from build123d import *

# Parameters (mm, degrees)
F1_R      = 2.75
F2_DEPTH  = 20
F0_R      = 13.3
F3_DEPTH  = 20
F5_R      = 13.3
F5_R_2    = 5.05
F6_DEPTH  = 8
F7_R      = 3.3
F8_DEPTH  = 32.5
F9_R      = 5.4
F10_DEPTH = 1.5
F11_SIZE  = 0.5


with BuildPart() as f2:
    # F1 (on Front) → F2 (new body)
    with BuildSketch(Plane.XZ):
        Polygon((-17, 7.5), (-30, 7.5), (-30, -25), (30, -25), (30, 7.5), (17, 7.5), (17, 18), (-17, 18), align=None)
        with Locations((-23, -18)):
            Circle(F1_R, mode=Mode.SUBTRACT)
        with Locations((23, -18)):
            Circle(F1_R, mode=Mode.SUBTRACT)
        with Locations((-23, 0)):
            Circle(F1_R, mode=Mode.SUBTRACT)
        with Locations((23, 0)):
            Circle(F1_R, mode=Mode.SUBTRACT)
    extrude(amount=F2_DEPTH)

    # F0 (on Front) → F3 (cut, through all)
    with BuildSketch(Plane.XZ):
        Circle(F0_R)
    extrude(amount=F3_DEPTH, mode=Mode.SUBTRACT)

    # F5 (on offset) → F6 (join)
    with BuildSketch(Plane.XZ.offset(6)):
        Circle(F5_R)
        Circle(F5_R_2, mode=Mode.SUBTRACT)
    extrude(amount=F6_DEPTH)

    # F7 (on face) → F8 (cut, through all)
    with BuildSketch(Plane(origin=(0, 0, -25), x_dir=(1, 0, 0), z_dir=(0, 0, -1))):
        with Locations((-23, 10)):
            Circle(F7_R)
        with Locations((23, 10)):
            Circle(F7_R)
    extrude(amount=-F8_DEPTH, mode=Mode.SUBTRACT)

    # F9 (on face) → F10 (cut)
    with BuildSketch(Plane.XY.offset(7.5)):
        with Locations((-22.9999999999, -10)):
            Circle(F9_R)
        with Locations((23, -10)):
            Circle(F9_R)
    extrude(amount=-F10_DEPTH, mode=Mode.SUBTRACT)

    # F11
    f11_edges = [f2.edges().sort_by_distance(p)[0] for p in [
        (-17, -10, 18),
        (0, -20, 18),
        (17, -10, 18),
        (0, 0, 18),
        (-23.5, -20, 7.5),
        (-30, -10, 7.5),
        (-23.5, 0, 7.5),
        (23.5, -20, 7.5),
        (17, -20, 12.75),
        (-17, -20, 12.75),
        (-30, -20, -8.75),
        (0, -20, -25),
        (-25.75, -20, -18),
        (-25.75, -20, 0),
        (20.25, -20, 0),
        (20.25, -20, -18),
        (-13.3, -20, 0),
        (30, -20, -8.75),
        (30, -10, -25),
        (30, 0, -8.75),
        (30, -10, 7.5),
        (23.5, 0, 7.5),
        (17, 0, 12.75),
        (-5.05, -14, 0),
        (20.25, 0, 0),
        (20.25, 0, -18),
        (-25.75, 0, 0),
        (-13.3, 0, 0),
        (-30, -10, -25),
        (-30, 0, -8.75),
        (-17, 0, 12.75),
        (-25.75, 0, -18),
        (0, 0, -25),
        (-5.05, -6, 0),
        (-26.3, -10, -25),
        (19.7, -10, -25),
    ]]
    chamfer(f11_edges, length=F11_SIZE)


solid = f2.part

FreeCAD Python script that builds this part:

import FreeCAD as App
import Part
import Sketcher
Q = App.Units.Quantity


def edges_at(feature, points):
    """Names of the edges that pass closest to the given points."""
    edges = feature.Shape.Edges
    near = lambda p: min(range(len(edges)), key=lambda i: edges[i].distToShape(Part.Vertex(*p))[0])
    return sorted({f"Edge{near(p) + 1}" for p in points})

doc = App.newDocument("Part")
params = doc.addObject("Spreadsheet::Sheet", "Params")
for row, (alias, value) in enumerate([
    ("sketch1_diameter", "5.5 mm"),
    ("sketch1_width", "13 mm"),
    ("sketch1_width2", "60 mm"),
    ("sketch1_height", "32.5 mm"),
    ("sketch1_height2", "10.5 mm"),
    ("pad1_length", "20 mm"),
    ("sketch2_diameter", "26.6 mm"),
    ("sketch3_diameter", "26.6 mm"),
    ("sketch3_diameter2", "10.1 mm"),
    ("pad2_length", "8 mm"),
    ("sketch4_diameter", "6.6 mm"),
    ("sketch5_diameter", "10.8 mm"),
    ("pocket3_length", "1.5 mm"),
    ("chamfer_size", "0.5 mm"),
], start=1):
    params.set(f"A{row}", alias)
    params.set(f"B{row}", "=" + value)
    params.setAlias(f"B{row}", alias)

body = doc.addObject("PartDesign::Body", "Body")

sketch1 = body.newObject("Sketcher::SketchObject", "Sketch")
sketch1.AttachmentSupport = (doc.getObject("XZ_Plane"), [""])
sketch1.MapMode = "FlatFace"
sketch1.addGeometry([
    Part.LineSegment(App.Vector(-17, 7.5, 0), App.Vector(-30, 7.5, 0)),
    Part.LineSegment(App.Vector(-30, 7.5, 0), App.Vector(-30, -25, 0)),
    Part.LineSegment(App.Vector(-30, -25, 0), App.Vector(30, -25, 0)),
    Part.LineSegment(App.Vector(30, -25, 0), App.Vector(30, 7.5, 0)),
    Part.LineSegment(App.Vector(30, 7.5, 0), App.Vector(17, 7.5, 0)),
    Part.LineSegment(App.Vector(17, 7.5, 0), App.Vector(17, 18, 0)),
    Part.LineSegment(App.Vector(17, 18, 0), App.Vector(-17, 18, 0)),
    Part.LineSegment(App.Vector(-17, 18, 0), App.Vector(-17, 7.5, 0)),
    Part.Circle(App.Vector(-23, -18, 0), App.Vector(0, 0, 1), 2.8),
    Part.Circle(App.Vector(23, -18, 0), App.Vector(0, 0, 1), 2.8),
    Part.Circle(App.Vector(-23, 0, 0), App.Vector(0, 0, 1), 2.8),
    Part.Circle(App.Vector(23, 0, 0), App.Vector(0, 0, 1), 2.8),
], False)
sketch1.addConstraint([
    Sketcher.Constraint("Coincident", 0, 2, 1, 1),
    Sketcher.Constraint("Coincident", 1, 2, 2, 1),
    Sketcher.Constraint("Coincident", 2, 2, 3, 1),
    Sketcher.Constraint("Coincident", 3, 2, 4, 1),
    Sketcher.Constraint("Coincident", 4, 2, 5, 1),
    Sketcher.Constraint("Coincident", 5, 2, 6, 1),
    Sketcher.Constraint("Coincident", 6, 2, 7, 1),
    Sketcher.Constraint("Coincident", 7, 2, 0, 1),
    Sketcher.Constraint("Horizontal", 0),
    Sketcher.Constraint("Vertical", 1),
    Sketcher.Constraint("Horizontal", 2),
    Sketcher.Constraint("Vertical", 3),
    Sketcher.Constraint("Horizontal", 4),
    Sketcher.Constraint("Vertical", 5),
    Sketcher.Constraint("Horizontal", 6),
    Sketcher.Constraint("Vertical", 7),
    Sketcher.Constraint("Equal", 8, 9),
    Sketcher.Constraint("Equal", 9, 10),
    Sketcher.Constraint("Equal", 10, 11),
    Sketcher.Constraint("Symmetric", 10, 3, 11, 3, -1, 1),
    Sketcher.Constraint("Symmetric", 8, 3, 9, 3, -2),
    Sketcher.Constraint("Symmetric", 0, 2, 3, 2, -2),
    Sketcher.Constraint("PointOnObject", 10, 3, -1),
    Sketcher.Constraint("Vertical", 8, 3, 10, 3),
    Sketcher.Constraint("Equal", 0, 4),
    Sketcher.Constraint("Diameter", 8, Q("5.5 mm")),
    Sketcher.Constraint("DistanceX", 0, 2, 0, 1, Q("13 mm")),
    Sketcher.Constraint("DistanceX", 2, 1, 2, 2, Q("60 mm")),
    Sketcher.Constraint("DistanceY", 1, 2, 1, 1, Q("32.5 mm")),
    Sketcher.Constraint("DistanceY", 5, 1, 5, 2, Q("10.5 mm")),
    Sketcher.Constraint("DistanceX", 8, 3, -1, 1, Q("23 mm")),
    Sketcher.Constraint("DistanceY", 8, 3, -1, 1, Q("18 mm")),
    Sketcher.Constraint("DistanceY", 1, 2, -1, 1, Q("25 mm")),
])
sketch1.setExpression("Constraints[25]", "Params.sketch1_diameter")
sketch1.setExpression("Constraints[26]", "Params.sketch1_width")
sketch1.setExpression("Constraints[27]", "Params.sketch1_width2")
sketch1.setExpression("Constraints[28]", "Params.sketch1_height")
sketch1.setExpression("Constraints[29]", "Params.sketch1_height2")
pad1 = body.newObject("PartDesign::Pad", "Pad")
pad1.Profile = sketch1
pad1.setExpression("Length", "Params.pad1_length")

sketch2 = body.newObject("Sketcher::SketchObject", "Sketch001")
sketch2.AttachmentSupport = (doc.getObject("XZ_Plane"), [""])
sketch2.MapMode = "FlatFace"
sketch2.addGeometry(Part.Circle(App.Vector(0, 0, 0), App.Vector(0, 0, 1), 13), False)
sketch2.addConstraint([
    Sketcher.Constraint("Coincident", 0, 3, -1, 1),
    Sketcher.Constraint("Diameter", 0, Q("26.6 mm")),
])
sketch2.setExpression("Constraints[1]", "Params.sketch2_diameter")
pocket1 = body.newObject("PartDesign::Pocket", "Pocket")
pocket1.Profile = sketch2
pocket1.Type = "ThroughAll"
pocket1.Reversed = True

sketch3 = body.newObject("Sketcher::SketchObject", "Sketch002")
sketch3.AttachmentSupport = (doc.getObject("XZ_Plane"), [""])
sketch3.MapMode = "FlatFace"
sketch3.AttachmentOffset = App.Placement(App.Vector(0, 0, 6), App.Rotation())
sketch3.addGeometry([
    Part.Circle(App.Vector(0, 0, 0), App.Vector(0, 0, 1), 13),
    Part.Circle(App.Vector(0, 0, 0), App.Vector(0, 0, 1), 5),
], False)
sketch3.addConstraint([
    Sketcher.Constraint("Coincident", 0, 3, -1, 1),
    Sketcher.Constraint("Coincident", 1, 3, -1, 1),
    Sketcher.Constraint("Diameter", 0, Q("26.6 mm")),
    Sketcher.Constraint("Diameter", 1, Q("10.1 mm")),
])
sketch3.setExpression("Constraints[2]", "Params.sketch3_diameter")
sketch3.setExpression("Constraints[3]", "Params.sketch3_diameter2")
pad2 = body.newObject("PartDesign::Pad", "Pad001")
pad2.Profile = sketch3
pad2.setExpression("Length", "Params.pad2_length")

sketch4 = body.newObject("Sketcher::SketchObject", "Sketch003")
sketch4.AttachmentSupport = (doc.getObject("XY_Plane"), [""])
sketch4.MapMode = "FlatFace"
sketch4.AttachmentOffset = App.Placement(App.Vector(0, 0, -25), App.Rotation())
sketch4.addGeometry([
    Part.Circle(App.Vector(-23, -10, 0), App.Vector(0, 0, 1), 3.3),
    Part.Circle(App.Vector(23, -10, 0), App.Vector(0, 0, 1), 3.3),
], False)
sketch4.addConstraint([
    Sketcher.Constraint("Equal", 0, 1),
    Sketcher.Constraint("Symmetric", 0, 3, 1, 3, -2),
    Sketcher.Constraint("Diameter", 0, Q("6.6 mm")),
    Sketcher.Constraint("DistanceX", 0, 3, -1, 1, Q("23 mm")),
    Sketcher.Constraint("DistanceY", 0, 3, -1, 1, Q("10 mm")),
])
sketch4.setExpression("Constraints[2]", "Params.sketch4_diameter")
pocket2 = body.newObject("PartDesign::Pocket", "Pocket001")
pocket2.Profile = sketch4
pocket2.Type = "ThroughAll"
pocket2.Reversed = True

sketch5 = body.newObject("Sketcher::SketchObject", "Sketch004")
sketch5.AttachmentSupport = (doc.getObject("XY_Plane"), [""])
sketch5.MapMode = "FlatFace"
sketch5.AttachmentOffset = App.Placement(App.Vector(0, 0, 7.5), App.Rotation())
sketch5.addGeometry([
    Part.Circle(App.Vector(-23, -10, 0), App.Vector(0, 0, 1), 5),
    Part.Circle(App.Vector(23, -10, 0), App.Vector(0, 0, 1), 5),
], False)
sketch5.addConstraint([
    Sketcher.Constraint("Equal", 0, 1),
    Sketcher.Constraint("Symmetric", 0, 3, 1, 3, -2),
    Sketcher.Constraint("Diameter", 0, Q("10.8 mm")),
    Sketcher.Constraint("DistanceX", 0, 3, -1, 1, Q("23 mm")),
    Sketcher.Constraint("DistanceY", 0, 3, -1, 1, Q("10 mm")),
])
sketch5.setExpression("Constraints[2]", "Params.sketch5_diameter")
pocket3 = body.newObject("PartDesign::Pocket", "Pocket002")
pocket3.Profile = sketch5
pocket3.setExpression("Length", "Params.pocket3_length")
doc.recompute()

chamfer = body.newObject("PartDesign::Chamfer", "Chamfer")
chamfer.Base = (pocket3, edges_at(pocket3, [
    (-17, -10, 18),
    (0, -20, 18),
    (17, -10, 18),
    (0, 0, 18),
    (-23.5, -20, 7.5),
    (-30, -10, 7.5),
    (-23.5, 0, 7.5),
    (23.5, -20, 7.5),
    (17, -20, 12.75),
    (-17, -20, 12.75),
    (-30, -20, -8.75),
    (0, -20, -25),
    (-25.75, -20, -18),
    (-25.75, -20, 0),
    (20.25, -20, 0),
    (20.25, -20, -18),
    (-13.3, -20, 0),
    (30, -20, -8.75),
    (30, -10, -25),
    (30, 0, -8.75),
    (30, -10, 7.5),
    (23.5, 0, 7.5),
    (17, 0, 12.75),
    (-5.05, -14, 0),
    (20.25, 0, 0),
    (20.25, 0, -18),
    (-25.75, 0, 0),
    (-13.3, 0, 0),
    (-30, -10, -25),
    (-30, 0, -8.75),
    (-17, 0, 12.75),
    (-25.75, 0, -18),
    (0, 0, -25),
    (-5.05, -6, 0),
    (-26.3, -10, -25),
    (19.7, -10, -25),
]))
chamfer.setExpression("Size", "Params.chamfer_size")

doc.recompute()
